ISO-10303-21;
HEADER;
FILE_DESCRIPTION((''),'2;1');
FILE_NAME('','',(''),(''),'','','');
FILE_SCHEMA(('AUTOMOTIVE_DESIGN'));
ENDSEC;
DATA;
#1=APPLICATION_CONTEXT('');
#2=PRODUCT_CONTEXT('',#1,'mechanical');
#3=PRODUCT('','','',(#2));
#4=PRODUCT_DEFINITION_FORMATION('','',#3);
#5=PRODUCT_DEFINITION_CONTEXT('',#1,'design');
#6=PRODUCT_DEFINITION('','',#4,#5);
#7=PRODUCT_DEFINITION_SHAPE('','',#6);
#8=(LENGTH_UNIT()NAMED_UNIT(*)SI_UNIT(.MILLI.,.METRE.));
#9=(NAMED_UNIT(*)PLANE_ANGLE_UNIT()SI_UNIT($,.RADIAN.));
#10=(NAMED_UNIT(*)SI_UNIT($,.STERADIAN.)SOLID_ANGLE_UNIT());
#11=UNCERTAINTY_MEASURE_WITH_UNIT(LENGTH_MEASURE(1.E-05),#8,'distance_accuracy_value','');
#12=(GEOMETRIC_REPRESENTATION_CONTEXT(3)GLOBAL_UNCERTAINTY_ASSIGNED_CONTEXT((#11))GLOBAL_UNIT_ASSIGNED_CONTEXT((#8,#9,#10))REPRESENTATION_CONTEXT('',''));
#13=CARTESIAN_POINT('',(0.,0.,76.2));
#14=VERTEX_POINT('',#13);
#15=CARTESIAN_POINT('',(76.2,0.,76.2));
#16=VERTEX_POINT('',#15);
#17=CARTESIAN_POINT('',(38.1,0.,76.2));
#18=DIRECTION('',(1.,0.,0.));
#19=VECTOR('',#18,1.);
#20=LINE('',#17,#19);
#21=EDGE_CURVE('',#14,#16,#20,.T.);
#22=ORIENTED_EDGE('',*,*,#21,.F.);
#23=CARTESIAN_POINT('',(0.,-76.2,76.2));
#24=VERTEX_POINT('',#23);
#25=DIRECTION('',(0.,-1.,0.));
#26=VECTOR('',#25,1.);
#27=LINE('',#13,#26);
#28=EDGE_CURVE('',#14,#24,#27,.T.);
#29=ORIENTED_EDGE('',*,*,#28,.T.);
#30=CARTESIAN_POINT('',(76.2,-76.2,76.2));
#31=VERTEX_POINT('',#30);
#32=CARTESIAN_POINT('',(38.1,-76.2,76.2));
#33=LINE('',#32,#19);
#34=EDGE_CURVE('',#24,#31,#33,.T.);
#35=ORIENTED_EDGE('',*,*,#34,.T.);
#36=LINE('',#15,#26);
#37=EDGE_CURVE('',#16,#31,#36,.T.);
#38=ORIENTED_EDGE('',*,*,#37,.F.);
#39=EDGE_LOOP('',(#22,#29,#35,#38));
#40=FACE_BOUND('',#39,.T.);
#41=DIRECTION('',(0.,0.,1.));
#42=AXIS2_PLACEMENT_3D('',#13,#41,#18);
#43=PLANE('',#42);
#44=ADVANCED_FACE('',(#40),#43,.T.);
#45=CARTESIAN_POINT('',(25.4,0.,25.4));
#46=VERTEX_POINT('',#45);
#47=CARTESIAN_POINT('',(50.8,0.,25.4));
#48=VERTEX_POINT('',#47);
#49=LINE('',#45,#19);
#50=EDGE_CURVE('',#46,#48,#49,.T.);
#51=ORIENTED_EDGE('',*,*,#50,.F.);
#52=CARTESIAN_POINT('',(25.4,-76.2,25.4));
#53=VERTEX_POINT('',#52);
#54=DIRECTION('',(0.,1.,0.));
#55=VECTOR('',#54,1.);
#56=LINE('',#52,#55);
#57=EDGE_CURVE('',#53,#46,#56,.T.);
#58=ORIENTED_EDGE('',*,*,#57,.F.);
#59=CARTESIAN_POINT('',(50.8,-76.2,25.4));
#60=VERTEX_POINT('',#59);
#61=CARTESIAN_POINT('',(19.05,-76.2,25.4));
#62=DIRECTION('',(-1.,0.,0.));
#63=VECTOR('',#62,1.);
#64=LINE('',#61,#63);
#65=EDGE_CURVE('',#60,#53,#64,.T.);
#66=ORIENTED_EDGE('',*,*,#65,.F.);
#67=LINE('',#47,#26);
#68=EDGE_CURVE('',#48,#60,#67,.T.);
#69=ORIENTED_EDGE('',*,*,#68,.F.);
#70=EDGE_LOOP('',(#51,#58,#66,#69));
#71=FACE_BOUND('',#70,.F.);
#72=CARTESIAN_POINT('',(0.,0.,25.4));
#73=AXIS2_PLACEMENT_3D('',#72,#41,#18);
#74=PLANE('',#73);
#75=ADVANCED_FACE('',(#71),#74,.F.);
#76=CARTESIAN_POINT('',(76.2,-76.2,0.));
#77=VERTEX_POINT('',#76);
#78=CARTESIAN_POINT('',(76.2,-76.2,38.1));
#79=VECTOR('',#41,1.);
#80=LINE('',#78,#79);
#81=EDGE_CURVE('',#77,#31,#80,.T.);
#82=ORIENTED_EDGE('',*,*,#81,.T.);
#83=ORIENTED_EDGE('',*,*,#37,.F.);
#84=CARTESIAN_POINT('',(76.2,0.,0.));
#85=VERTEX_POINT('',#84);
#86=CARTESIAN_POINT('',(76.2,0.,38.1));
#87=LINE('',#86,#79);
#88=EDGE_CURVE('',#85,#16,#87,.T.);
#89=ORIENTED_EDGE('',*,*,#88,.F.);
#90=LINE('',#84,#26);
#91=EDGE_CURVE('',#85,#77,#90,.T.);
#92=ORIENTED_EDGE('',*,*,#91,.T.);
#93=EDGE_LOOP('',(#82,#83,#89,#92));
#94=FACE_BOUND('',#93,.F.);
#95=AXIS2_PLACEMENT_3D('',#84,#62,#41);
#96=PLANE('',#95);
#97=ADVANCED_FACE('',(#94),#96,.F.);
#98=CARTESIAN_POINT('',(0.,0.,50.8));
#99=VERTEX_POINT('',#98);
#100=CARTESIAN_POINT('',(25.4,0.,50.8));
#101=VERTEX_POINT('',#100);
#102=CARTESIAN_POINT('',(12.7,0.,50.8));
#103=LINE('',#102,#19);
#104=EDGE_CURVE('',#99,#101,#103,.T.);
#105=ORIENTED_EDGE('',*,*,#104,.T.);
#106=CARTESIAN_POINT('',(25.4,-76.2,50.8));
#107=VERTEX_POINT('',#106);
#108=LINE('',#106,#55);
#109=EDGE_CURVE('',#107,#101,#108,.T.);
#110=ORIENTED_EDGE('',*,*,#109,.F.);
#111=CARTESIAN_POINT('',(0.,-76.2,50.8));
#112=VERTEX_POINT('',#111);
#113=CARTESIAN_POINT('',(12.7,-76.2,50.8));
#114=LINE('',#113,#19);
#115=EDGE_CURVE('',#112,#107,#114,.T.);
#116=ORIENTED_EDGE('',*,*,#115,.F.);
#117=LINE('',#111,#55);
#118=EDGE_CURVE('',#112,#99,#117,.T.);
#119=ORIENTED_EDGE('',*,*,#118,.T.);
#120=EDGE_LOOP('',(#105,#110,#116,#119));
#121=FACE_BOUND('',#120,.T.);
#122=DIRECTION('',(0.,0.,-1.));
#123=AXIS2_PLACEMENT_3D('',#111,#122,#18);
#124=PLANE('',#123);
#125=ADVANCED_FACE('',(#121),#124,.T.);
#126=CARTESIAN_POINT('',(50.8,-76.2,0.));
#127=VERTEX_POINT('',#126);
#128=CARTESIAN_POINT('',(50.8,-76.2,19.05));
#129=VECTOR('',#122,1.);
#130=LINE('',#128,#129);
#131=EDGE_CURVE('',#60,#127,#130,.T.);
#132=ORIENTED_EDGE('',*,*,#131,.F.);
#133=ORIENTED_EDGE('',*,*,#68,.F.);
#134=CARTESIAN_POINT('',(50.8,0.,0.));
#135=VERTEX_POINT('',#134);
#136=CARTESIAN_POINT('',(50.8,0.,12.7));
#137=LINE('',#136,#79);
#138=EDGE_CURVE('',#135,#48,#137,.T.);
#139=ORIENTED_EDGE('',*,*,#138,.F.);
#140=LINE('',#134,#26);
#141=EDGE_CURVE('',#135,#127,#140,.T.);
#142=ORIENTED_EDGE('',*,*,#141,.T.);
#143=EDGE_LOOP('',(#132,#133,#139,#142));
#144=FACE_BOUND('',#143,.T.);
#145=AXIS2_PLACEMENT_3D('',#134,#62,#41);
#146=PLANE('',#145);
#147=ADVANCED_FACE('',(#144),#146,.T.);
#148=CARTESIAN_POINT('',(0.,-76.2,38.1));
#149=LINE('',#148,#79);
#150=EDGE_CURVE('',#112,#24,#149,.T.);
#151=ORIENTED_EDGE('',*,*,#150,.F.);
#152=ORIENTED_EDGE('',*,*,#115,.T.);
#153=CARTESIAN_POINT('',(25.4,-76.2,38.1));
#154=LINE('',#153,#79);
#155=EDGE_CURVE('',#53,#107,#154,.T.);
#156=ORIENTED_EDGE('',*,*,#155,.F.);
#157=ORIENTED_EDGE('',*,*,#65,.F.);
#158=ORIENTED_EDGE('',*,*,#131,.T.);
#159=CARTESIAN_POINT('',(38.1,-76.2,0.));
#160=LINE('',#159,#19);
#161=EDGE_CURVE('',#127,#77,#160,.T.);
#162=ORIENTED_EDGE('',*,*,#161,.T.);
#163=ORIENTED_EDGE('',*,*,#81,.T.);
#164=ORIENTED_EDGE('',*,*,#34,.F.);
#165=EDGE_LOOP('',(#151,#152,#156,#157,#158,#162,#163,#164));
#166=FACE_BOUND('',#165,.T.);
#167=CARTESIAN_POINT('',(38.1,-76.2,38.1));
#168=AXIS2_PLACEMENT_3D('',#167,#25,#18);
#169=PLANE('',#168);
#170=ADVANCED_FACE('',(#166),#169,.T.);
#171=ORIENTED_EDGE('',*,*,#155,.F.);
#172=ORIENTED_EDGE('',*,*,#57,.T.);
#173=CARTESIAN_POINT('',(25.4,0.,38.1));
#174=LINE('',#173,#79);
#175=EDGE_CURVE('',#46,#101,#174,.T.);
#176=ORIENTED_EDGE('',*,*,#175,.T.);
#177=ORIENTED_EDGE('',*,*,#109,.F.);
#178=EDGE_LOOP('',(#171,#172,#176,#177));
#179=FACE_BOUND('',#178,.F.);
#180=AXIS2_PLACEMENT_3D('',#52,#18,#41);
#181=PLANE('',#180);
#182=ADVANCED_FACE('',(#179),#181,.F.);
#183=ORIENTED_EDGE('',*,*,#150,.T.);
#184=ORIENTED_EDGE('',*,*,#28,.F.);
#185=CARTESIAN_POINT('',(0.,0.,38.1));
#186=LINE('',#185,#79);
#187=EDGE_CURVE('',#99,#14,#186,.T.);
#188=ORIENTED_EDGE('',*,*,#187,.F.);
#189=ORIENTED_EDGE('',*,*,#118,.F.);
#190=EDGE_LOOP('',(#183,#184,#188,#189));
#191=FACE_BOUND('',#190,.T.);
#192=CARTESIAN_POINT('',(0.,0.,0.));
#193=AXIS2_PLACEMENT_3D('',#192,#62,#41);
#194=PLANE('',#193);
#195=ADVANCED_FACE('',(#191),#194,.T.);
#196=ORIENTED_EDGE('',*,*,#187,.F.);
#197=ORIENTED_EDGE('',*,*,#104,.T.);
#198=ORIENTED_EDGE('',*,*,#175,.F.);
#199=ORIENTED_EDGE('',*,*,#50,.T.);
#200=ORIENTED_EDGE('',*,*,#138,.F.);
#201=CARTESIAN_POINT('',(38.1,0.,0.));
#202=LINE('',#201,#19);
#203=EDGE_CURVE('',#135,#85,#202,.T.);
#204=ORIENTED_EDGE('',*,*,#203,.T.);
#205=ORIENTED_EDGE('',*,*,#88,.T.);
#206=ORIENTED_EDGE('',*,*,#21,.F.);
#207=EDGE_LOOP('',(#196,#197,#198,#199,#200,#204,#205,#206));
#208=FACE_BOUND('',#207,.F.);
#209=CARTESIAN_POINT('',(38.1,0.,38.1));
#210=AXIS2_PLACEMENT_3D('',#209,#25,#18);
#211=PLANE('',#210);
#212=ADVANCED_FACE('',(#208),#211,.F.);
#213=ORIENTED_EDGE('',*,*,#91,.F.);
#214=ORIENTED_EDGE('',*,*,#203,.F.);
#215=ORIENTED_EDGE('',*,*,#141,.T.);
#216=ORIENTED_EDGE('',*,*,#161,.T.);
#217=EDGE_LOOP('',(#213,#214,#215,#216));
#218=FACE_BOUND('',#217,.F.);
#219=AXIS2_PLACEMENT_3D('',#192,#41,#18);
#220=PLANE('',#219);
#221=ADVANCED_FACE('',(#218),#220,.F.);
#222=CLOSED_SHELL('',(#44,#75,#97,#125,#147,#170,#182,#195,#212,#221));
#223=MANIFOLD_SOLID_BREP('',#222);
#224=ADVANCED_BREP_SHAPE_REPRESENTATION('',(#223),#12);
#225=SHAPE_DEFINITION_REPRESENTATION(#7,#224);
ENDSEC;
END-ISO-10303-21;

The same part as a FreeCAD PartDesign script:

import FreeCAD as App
import Part
import Sketcher

V = App.Vector
Q = App.Units.Quantity


def add_polygon(sketch, points):
    """Adds a closed chain of lines whose ends are joined by coincident constraints."""
    first, n = sketch.GeometryCount, len(points)
    for a, b in zip(points, points[1:] + points[:1]):
        sketch.addGeometry(Part.LineSegment(App.Vector(*a, 0), App.Vector(*b, 0)), False)
    for i in range(n):
        sketch.addConstraint(Sketcher.Constraint("Coincident", first + i, 2, first + (i + 1) % n, 1))

doc = App.newDocument("Part")
body = doc.addObject("PartDesign::Body", "Body")

sketch1 = body.newObject("Sketcher::SketchObject", "Sketch")
sketch1.AttachmentSupport = (doc.getObject("XZ_Plane"), [""])
sketch1.MapMode = "FlatFace"
add_polygon(sketch1, [(0, 76.2), (0, 0), (76.2, 0), (76.2, 76.2)])
sketch1.addConstraint([
    Sketcher.Constraint("Vertical", 0),
    Sketcher.Constraint("Horizontal", 1),
    Sketcher.Constraint("Vertical", 2),
    Sketcher.Constraint("Horizontal", 3),
    Sketcher.Constraint("Coincident", 0, 2, -1, 1),
    Sketcher.Constraint("Equal", 3, 0),
    Sketcher.Constraint("DistanceX", 1, 1, 1, 2, Q("3 in")),
])
pad1 = body.newObject("PartDesign::Pad", "Pad")
pad1.Profile = sketch1
pad1.Length = Q("3 in")

sketch2 = body.newObject("Sketcher::SketchObject", "Sketch001")
sketch2.AttachmentSupport = (doc.getObject("XZ_Plane"), [""])
sketch2.MapMode = "FlatFace"
add_polygon(sketch2, [(0, 25.4), (0, 0), (50.8, 0), (50.8, 25.4)])
sketch2.addConstraint([
    Sketcher.Constraint("Vertical", 0),
    Sketcher.Constraint("Horizontal", 1),
    Sketcher.Constraint("Vertical", 2),
    Sketcher.Constraint("Horizontal", 3),
    Sketcher.Constraint("Coincident", 0, 2, -1, 1),
    Sketcher.Constraint("DistanceX", 1, 1, 1, 2, Q("2 in")),
    Sketcher.Constraint("DistanceY", 0, 2, 0, 1, Q("1 in")),
])
pocket1 = body.newObject("PartDesign::Pocket", "Pocket")
pocket1.Profile = sketch2
pocket1.Length = Q("6.48 in")
pocket1.Reversed = True

sketch3 = body.newObject("Sketcher::SketchObject", "Sketch002")
sketch3.AttachmentSupport = (doc.getObject("XZ_Plane"), [""])
sketch3.MapMode = "FlatFace"
sketch3.AttachmentOffset = App.Placement(V(0, 0, 3 * 25.4), App.Rotation())
add_polygon(sketch3, [(0, 50.8), (0, 25.4), (25.4, 25.4), (25.4, 50.8)])
sketch3.addConstraint([
    Sketcher.Constraint("Vertical", 0),
    Sketcher.Constraint("Horizontal", 1),
    Sketcher.Constraint("Vertical", 2),
    Sketcher.Constraint("Horizontal", 3),
    Sketcher.Constraint("PointOnObject", 0, 2, -2),
    Sketcher.Constraint("Equal", 3, 0),
    Sketcher.Constraint("DistanceX", 1, 1, 1, 2, Q("1 in")),
    Sketcher.Constraint("DistanceY", -1, 1, 0, 2, Q("1 in")),
])
pocket2 = body.newObject("PartDesign::Pocket", "Pocket001")
pocket2.Profile = sketch3
pocket2.Length = Q("3 in")

doc.recompute()
